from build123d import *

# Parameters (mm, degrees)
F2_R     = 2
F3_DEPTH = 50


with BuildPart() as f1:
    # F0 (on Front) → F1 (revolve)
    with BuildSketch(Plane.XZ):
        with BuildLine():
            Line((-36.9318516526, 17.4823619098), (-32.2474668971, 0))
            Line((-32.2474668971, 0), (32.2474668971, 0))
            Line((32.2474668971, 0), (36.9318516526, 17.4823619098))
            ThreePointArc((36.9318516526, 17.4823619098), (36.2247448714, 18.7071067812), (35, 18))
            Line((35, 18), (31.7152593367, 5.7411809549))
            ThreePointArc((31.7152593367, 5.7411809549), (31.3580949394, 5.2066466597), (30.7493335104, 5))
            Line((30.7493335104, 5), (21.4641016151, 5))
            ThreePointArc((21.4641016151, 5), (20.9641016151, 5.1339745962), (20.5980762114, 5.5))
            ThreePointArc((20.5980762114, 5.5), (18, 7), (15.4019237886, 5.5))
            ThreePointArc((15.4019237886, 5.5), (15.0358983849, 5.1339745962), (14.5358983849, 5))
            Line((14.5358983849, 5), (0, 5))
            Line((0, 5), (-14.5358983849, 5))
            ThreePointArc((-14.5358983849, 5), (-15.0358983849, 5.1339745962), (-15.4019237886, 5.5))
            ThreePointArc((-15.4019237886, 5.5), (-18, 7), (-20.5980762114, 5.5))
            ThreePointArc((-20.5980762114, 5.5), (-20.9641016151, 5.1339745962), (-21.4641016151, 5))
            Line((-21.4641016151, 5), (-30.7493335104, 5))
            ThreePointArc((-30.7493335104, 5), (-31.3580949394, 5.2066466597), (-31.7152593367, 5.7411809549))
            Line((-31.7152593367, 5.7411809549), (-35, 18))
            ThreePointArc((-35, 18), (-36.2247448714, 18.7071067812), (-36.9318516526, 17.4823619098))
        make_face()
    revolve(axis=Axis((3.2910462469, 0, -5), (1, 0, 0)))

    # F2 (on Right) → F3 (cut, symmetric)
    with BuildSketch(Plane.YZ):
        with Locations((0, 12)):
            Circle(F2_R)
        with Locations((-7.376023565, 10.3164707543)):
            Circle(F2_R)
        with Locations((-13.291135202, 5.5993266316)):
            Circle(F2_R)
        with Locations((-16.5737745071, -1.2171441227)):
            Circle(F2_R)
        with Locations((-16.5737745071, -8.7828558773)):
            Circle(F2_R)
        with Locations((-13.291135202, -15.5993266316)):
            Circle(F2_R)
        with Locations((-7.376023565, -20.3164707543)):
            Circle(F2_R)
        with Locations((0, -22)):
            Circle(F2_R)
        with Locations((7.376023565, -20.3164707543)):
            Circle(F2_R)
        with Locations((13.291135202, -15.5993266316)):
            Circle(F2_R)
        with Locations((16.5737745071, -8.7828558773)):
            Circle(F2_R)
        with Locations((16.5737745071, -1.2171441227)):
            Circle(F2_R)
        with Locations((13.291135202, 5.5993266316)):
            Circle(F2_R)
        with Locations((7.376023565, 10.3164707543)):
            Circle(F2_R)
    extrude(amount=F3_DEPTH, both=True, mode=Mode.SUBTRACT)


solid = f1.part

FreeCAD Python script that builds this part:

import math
import FreeCAD as App
import Part
import Sketcher

V = App.Vector
Q = App.Units.Quantity

doc = App.newDocument("Part")
body = doc.addObject("PartDesign::Body", "Body")

# Sketch on XZ plane
sketch1 = body.newObject("Sketcher::SketchObject", "Sketch")
sketch1.AttachmentSupport = (doc.getObject("XZ_Plane"), [""])
sketch1.MapMode = "FlatFace"
sketch1.addGeometry([
    Part.LineSegment(V(-36.9, 17.5, 0), V(-32.2, 0, 0)),  # 0
    Part.LineSegment(V(-32.2, 0, 0), V(32.2, 0, 0)),  # 1
    Part.LineSegment(V(32.2, 0, 0), V(36.9, 17.5, 0)),  # 2
    Part.ArcOfCircle(Part.Circle(V(36, 17.7, 0), V(0, 0, 1), 1), math.radians(-15), math.radians(165)),  # 3
    Part.LineSegment(V(35, 18, 0), V(31.7, 5.7, 0)),  # 4
    Part.ArcOfCircle(Part.Circle(V(30.7, 6, 0), V(0, 0, 1), 1), math.radians(-90), math.radians(-15)),  # 5
    Part.LineSegment(V(30.7, 5, 0), V(21.5, 5, 0)),  # 6
    Part.ArcOfCircle(Part.Circle(V(21.5, 6, 0), V(0, 0, 1), 1), math.radians(-150), math.radians(-90)),  # 7
    Part.ArcOfCircle(Part.Circle(V(18, 4, 0), V(0, 0, 1), 3), math.radians(30), math.radians(150)),  # 8
    Part.ArcOfCircle(Part.Circle(V(14.5, 6, 0), V(0, 0, 1), 1), math.radians(-90), math.radians(-30)),  # 9
    Part.LineSegment(V(14.5, 5, 0), V(-14.5, 5, 0)),  # 10
    Part.ArcOfCircle(Part.Circle(V(-14.5, 6, 0), V(0, 0, 1), 1), math.radians(-150), math.radians(-90)),  # 11
    Part.ArcOfCircle(Part.Circle(V(-18, 4, 0), V(0, 0, 1), 3), math.radians(30), math.radians(150)),  # 12
    Part.ArcOfCircle(Part.Circle(V(-21.5, 6, 0), V(0, 0, 1), 1), math.radians(-90), math.radians(-30)),  # 13
    Part.LineSegment(V(-21.5, 5, 0), V(-30.7, 5, 0)),  # 14
    Part.ArcOfCircle(Part.Circle(V(-30.7, 6, 0), V(0, 0, 1), 1), math.radians(-165), math.radians(-90)),  # 15
    Part.LineSegment(V(-31.7, 5.7, 0), V(-35, 18, 0)),  # 16
    Part.ArcOfCircle(Part.Circle(V(-36, 17.7, 0), V(0, 0, 1), 1), math.radians(15), math.radians(195)),  # 17
], False)
sketch1.addGeometry(Part.LineSegment(V(-36.9, -5, 0), V(36.9, -5, 0)), True)  # axis
sketch1.addConstraint([
    Sketcher.Constraint("Coincident", 0, 2, 1, 1),
    Sketcher.Constraint("Coincident", 1, 2, 2, 1),
    Sketcher.Constraint("Tangent", 2, 2, 3, 1),
    Sketcher.Constraint("Tangent", 3, 2, 4, 1),
    Sketcher.Constraint("Tangent", 4, 2, 5, 2),
    Sketcher.Constraint("Tangent", 5, 1, 6, 1),
    Sketcher.Constraint("Tangent", 6, 2, 7, 2),
    Sketcher.Constraint("Tangent", 7, 1, 8, 1),
    Sketcher.Constraint("Tangent", 8, 2, 9, 2),
    Sketcher.Constraint("Tangent", 9, 1, 10, 1),
    Sketcher.Constraint("Tangent", 10, 2, 11, 2),
    Sketcher.Constraint("Tangent", 11, 1, 12, 1),
    Sketcher.Constraint("Tangent", 12, 2, 13, 2),
    Sketcher.Constraint("Tangent", 13, 1, 14, 1),
    Sketcher.Constraint("Tangent", 14, 2, 15, 2),
    Sketcher.Constraint("Tangent", 15, 1, 16, 1),
    Sketcher.Constraint("Tangent", 16, 2, 17, 1),
    Sketcher.Constraint("Tangent", 17, 2, 0, 1),
    Sketcher.Constraint("Horizontal", 1),
    Sketcher.Constraint("Horizontal", 6),
    Sketcher.Constraint("Horizontal", 10),
    Sketcher.Constraint("Horizontal", 14),
    Sketcher.Constraint("Horizontal", 18),
    Sketcher.Constraint("Equal", 3, 5),
    Sketcher.Constraint("Equal", 5, 7),
    Sketcher.Constraint("Equal", 7, 9),
    Sketcher.Constraint("Equal", 9, 11),
    Sketcher.Constraint("Equal", 8, 12),
    Sketcher.Constraint("Equal", 11, 13),
    Sketcher.Constraint("Equal", 13, 15),
    Sketcher.Constraint("Equal", 15, 17),
    Sketcher.Constraint("Symmetric", 0, 2, 1, 2, -1, 1),
    Sketcher.Constraint("Symmetric", 8, 3, 12, 3, -2),
    Sketcher.Constraint("Symmetric", 5, 3, 15, 3, -2),
    Sketcher.Constraint("Symmetric", 3, 3, 17, 3, -2),
    Sketcher.Constraint("Parallel", 2, 4),
    Sketcher.Constraint("Horizontal", 7, 3, 9, 3),
    Sketcher.Constraint("Vertical", 17, 2, 18, 1),
    Sketcher.Constraint("Vertical", 2, 2, 18, 2),
    Sketcher.Constraint("Radius", 3, Q("1 mm")),
    Sketcher.Constraint("Radius", 8, Q("3 mm")),
    Sketcher.Constraint("Angle", 0, Q("-75 deg")),
    Sketcher.Constraint("DistanceY", -1, 1, 5, 3, Q("6 mm")),
    Sketcher.Constraint("DistanceX", -1, 1, 8, 3, Q("18 mm")),
    Sketcher.Constraint("DistanceY", -1, 1, 8, 3, Q("4 mm")),
    Sketcher.Constraint("DistanceX", -1, 1, 3, 2, Q("35 mm")),
    Sketcher.Constraint("DistanceY", -1, 1, 3, 2, Q("18 mm")),
    Sketcher.Constraint("DistanceY", 18, 1, -1, 1, Q("5 mm")),
])
revolution = body.newObject("PartDesign::Revolution", "Revolution")
revolution.Profile = sketch1
revolution.ReferenceAxis = (sketch1, ["Axis0"])
revolution.Angle = 360

# Sketch on YZ plane
sketch2 = body.newObject("Sketcher::SketchObject", "Sketch001")
sketch2.AttachmentSupport = (doc.getObject("YZ_Plane"), [""])
sketch2.MapMode = "FlatFace"
sketch2.addGeometry([
    Part.Circle(V(0, 12, 0), V(0, 0, 1), 2),  # 0
    Part.Circle(V(-7.4, 10.3, 0), V(0, 0, 1), 2),  # 1
    Part.Circle(V(-13.3, 5.6, 0), V(0, 0, 1), 2),  # 2
    Part.Circle(V(-16.6, -1.2, 0), V(0, 0, 1), 2),  # 3
    Part.Circle(V(-16.6, -8.8, 0), V(0, 0, 1), 2),  # 4
    Part.Circle(V(-13.3, -15.6, 0), V(0, 0, 1), 2),  # 5
    Part.Circle(V(-7.4, -20.3, 0), V(0, 0, 1), 2),  # 6
    Part.Circle(V(0, -22, 0), V(0, 0, 1), 2),  # 7
    Part.Circle(V(7.4, -20.3, 0), V(0, 0, 1), 2),  # 8
    Part.Circle(V(13.3, -15.6, 0), V(0, 0, 1), 2),  # 9
    Part.Circle(V(16.6, -8.8, 0), V(0, 0, 1), 2),  # 10
    Part.Circle(V(16.6, -1.2, 0), V(0, 0, 1), 2),  # 11
    Part.Circle(V(13.3, 5.6, 0), V(0, 0, 1), 2),  # 12
    Part.Circle(V(7.4, 10.3, 0), V(0, 0, 1), 2),  # 13
], False)
sketch2.addConstraint([
    Sketcher.Constraint("Equal", 0, 1),
    Sketcher.Constraint("Equal", 1, 2),
    Sketcher.Constraint("Equal", 2, 3),
    Sketcher.Constraint("Equal", 3, 4),
    Sketcher.Constraint("Equal", 4, 5),
    Sketcher.Constraint("Equal", 5, 6),
    Sketcher.Constraint("Equal", 6, 7),
    Sketcher.Constraint("Equal", 7, 8),
    Sketcher.Constraint("Equal", 8, 9),
    Sketcher.Constraint("Equal", 9, 10),
    Sketcher.Constraint("Equal", 10, 11),
    Sketcher.Constraint("Equal", 11, 12),
    Sketcher.Constraint("Equal", 12, 13),
    Sketcher.Constraint("Symmetric", 6, 3, 8, 3, -2),
    Sketcher.Constraint("Symmetric", 5, 3, 9, 3, -2),
    Sketcher.Constraint("Symmetric", 4, 3, 10, 3, -2),
    Sketcher.Constraint("Symmetric", 3, 3, 11, 3, -2),
    Sketcher.Constraint("Symmetric", 2, 3, 12, 3, -2),
    Sketcher.Constraint("Symmetric", 1, 3, 13, 3, -2),
    Sketcher.Constraint("PointOnObject", 0, 3, -2),
    Sketcher.Constraint("PointOnObject", 7, 3, -2),
    Sketcher.Constraint("Vertical", 3, 3, 4, 3),
    Sketcher.Constraint("Vertical", 2, 3, 5, 3),
    Sketcher.Constraint("Vertical", 1, 3, 6, 3),
    Sketcher.Constraint("Diameter", 0, Q("4 mm")),
    Sketcher.Constraint("DistanceY", -1, 1, 0, 3, Q("12 mm")),
    Sketcher.Constraint("DistanceY", 7, 3, -1, 1, Q("22 mm")),
    Sketcher.Constraint("DistanceX", 4, 3, 8, 3, Q("23.949798 mm")),
    Sketcher.Constraint("DistanceY", -1, 1, 1, 3, Q("10.316471 mm")),
    Sketcher.Constraint("DistanceY", 6, 3, -1, 1, Q("20.316471 mm")),
    Sketcher.Constraint("DistanceX", 2, 3, 1, 3, Q("5.915112 mm")),
    Sketcher.Constraint("DistanceX", 3, 3, 2, 3, Q("3.282639 mm")),
    Sketcher.Constraint("DistanceY", 3, 3, 2, 3, Q("6.816471 mm")),
    Sketcher.Constraint("DistanceY", 4, 3, 3, 3, Q("7.565712 mm")),
    Sketcher.Constraint("DistanceY", 5, 3, 4, 3, Q("6.816471 mm")),
    Sketcher.Constraint("DistanceY", -1, 1, 2, 3, Q("5.599327 mm")),
])
pocket1 = body.newObject("PartDesign::Pocket", "Pocket")
pocket1.Profile = sketch2
pocket1.Length = 100
pocket1.Midplane = True

doc.recompute()
